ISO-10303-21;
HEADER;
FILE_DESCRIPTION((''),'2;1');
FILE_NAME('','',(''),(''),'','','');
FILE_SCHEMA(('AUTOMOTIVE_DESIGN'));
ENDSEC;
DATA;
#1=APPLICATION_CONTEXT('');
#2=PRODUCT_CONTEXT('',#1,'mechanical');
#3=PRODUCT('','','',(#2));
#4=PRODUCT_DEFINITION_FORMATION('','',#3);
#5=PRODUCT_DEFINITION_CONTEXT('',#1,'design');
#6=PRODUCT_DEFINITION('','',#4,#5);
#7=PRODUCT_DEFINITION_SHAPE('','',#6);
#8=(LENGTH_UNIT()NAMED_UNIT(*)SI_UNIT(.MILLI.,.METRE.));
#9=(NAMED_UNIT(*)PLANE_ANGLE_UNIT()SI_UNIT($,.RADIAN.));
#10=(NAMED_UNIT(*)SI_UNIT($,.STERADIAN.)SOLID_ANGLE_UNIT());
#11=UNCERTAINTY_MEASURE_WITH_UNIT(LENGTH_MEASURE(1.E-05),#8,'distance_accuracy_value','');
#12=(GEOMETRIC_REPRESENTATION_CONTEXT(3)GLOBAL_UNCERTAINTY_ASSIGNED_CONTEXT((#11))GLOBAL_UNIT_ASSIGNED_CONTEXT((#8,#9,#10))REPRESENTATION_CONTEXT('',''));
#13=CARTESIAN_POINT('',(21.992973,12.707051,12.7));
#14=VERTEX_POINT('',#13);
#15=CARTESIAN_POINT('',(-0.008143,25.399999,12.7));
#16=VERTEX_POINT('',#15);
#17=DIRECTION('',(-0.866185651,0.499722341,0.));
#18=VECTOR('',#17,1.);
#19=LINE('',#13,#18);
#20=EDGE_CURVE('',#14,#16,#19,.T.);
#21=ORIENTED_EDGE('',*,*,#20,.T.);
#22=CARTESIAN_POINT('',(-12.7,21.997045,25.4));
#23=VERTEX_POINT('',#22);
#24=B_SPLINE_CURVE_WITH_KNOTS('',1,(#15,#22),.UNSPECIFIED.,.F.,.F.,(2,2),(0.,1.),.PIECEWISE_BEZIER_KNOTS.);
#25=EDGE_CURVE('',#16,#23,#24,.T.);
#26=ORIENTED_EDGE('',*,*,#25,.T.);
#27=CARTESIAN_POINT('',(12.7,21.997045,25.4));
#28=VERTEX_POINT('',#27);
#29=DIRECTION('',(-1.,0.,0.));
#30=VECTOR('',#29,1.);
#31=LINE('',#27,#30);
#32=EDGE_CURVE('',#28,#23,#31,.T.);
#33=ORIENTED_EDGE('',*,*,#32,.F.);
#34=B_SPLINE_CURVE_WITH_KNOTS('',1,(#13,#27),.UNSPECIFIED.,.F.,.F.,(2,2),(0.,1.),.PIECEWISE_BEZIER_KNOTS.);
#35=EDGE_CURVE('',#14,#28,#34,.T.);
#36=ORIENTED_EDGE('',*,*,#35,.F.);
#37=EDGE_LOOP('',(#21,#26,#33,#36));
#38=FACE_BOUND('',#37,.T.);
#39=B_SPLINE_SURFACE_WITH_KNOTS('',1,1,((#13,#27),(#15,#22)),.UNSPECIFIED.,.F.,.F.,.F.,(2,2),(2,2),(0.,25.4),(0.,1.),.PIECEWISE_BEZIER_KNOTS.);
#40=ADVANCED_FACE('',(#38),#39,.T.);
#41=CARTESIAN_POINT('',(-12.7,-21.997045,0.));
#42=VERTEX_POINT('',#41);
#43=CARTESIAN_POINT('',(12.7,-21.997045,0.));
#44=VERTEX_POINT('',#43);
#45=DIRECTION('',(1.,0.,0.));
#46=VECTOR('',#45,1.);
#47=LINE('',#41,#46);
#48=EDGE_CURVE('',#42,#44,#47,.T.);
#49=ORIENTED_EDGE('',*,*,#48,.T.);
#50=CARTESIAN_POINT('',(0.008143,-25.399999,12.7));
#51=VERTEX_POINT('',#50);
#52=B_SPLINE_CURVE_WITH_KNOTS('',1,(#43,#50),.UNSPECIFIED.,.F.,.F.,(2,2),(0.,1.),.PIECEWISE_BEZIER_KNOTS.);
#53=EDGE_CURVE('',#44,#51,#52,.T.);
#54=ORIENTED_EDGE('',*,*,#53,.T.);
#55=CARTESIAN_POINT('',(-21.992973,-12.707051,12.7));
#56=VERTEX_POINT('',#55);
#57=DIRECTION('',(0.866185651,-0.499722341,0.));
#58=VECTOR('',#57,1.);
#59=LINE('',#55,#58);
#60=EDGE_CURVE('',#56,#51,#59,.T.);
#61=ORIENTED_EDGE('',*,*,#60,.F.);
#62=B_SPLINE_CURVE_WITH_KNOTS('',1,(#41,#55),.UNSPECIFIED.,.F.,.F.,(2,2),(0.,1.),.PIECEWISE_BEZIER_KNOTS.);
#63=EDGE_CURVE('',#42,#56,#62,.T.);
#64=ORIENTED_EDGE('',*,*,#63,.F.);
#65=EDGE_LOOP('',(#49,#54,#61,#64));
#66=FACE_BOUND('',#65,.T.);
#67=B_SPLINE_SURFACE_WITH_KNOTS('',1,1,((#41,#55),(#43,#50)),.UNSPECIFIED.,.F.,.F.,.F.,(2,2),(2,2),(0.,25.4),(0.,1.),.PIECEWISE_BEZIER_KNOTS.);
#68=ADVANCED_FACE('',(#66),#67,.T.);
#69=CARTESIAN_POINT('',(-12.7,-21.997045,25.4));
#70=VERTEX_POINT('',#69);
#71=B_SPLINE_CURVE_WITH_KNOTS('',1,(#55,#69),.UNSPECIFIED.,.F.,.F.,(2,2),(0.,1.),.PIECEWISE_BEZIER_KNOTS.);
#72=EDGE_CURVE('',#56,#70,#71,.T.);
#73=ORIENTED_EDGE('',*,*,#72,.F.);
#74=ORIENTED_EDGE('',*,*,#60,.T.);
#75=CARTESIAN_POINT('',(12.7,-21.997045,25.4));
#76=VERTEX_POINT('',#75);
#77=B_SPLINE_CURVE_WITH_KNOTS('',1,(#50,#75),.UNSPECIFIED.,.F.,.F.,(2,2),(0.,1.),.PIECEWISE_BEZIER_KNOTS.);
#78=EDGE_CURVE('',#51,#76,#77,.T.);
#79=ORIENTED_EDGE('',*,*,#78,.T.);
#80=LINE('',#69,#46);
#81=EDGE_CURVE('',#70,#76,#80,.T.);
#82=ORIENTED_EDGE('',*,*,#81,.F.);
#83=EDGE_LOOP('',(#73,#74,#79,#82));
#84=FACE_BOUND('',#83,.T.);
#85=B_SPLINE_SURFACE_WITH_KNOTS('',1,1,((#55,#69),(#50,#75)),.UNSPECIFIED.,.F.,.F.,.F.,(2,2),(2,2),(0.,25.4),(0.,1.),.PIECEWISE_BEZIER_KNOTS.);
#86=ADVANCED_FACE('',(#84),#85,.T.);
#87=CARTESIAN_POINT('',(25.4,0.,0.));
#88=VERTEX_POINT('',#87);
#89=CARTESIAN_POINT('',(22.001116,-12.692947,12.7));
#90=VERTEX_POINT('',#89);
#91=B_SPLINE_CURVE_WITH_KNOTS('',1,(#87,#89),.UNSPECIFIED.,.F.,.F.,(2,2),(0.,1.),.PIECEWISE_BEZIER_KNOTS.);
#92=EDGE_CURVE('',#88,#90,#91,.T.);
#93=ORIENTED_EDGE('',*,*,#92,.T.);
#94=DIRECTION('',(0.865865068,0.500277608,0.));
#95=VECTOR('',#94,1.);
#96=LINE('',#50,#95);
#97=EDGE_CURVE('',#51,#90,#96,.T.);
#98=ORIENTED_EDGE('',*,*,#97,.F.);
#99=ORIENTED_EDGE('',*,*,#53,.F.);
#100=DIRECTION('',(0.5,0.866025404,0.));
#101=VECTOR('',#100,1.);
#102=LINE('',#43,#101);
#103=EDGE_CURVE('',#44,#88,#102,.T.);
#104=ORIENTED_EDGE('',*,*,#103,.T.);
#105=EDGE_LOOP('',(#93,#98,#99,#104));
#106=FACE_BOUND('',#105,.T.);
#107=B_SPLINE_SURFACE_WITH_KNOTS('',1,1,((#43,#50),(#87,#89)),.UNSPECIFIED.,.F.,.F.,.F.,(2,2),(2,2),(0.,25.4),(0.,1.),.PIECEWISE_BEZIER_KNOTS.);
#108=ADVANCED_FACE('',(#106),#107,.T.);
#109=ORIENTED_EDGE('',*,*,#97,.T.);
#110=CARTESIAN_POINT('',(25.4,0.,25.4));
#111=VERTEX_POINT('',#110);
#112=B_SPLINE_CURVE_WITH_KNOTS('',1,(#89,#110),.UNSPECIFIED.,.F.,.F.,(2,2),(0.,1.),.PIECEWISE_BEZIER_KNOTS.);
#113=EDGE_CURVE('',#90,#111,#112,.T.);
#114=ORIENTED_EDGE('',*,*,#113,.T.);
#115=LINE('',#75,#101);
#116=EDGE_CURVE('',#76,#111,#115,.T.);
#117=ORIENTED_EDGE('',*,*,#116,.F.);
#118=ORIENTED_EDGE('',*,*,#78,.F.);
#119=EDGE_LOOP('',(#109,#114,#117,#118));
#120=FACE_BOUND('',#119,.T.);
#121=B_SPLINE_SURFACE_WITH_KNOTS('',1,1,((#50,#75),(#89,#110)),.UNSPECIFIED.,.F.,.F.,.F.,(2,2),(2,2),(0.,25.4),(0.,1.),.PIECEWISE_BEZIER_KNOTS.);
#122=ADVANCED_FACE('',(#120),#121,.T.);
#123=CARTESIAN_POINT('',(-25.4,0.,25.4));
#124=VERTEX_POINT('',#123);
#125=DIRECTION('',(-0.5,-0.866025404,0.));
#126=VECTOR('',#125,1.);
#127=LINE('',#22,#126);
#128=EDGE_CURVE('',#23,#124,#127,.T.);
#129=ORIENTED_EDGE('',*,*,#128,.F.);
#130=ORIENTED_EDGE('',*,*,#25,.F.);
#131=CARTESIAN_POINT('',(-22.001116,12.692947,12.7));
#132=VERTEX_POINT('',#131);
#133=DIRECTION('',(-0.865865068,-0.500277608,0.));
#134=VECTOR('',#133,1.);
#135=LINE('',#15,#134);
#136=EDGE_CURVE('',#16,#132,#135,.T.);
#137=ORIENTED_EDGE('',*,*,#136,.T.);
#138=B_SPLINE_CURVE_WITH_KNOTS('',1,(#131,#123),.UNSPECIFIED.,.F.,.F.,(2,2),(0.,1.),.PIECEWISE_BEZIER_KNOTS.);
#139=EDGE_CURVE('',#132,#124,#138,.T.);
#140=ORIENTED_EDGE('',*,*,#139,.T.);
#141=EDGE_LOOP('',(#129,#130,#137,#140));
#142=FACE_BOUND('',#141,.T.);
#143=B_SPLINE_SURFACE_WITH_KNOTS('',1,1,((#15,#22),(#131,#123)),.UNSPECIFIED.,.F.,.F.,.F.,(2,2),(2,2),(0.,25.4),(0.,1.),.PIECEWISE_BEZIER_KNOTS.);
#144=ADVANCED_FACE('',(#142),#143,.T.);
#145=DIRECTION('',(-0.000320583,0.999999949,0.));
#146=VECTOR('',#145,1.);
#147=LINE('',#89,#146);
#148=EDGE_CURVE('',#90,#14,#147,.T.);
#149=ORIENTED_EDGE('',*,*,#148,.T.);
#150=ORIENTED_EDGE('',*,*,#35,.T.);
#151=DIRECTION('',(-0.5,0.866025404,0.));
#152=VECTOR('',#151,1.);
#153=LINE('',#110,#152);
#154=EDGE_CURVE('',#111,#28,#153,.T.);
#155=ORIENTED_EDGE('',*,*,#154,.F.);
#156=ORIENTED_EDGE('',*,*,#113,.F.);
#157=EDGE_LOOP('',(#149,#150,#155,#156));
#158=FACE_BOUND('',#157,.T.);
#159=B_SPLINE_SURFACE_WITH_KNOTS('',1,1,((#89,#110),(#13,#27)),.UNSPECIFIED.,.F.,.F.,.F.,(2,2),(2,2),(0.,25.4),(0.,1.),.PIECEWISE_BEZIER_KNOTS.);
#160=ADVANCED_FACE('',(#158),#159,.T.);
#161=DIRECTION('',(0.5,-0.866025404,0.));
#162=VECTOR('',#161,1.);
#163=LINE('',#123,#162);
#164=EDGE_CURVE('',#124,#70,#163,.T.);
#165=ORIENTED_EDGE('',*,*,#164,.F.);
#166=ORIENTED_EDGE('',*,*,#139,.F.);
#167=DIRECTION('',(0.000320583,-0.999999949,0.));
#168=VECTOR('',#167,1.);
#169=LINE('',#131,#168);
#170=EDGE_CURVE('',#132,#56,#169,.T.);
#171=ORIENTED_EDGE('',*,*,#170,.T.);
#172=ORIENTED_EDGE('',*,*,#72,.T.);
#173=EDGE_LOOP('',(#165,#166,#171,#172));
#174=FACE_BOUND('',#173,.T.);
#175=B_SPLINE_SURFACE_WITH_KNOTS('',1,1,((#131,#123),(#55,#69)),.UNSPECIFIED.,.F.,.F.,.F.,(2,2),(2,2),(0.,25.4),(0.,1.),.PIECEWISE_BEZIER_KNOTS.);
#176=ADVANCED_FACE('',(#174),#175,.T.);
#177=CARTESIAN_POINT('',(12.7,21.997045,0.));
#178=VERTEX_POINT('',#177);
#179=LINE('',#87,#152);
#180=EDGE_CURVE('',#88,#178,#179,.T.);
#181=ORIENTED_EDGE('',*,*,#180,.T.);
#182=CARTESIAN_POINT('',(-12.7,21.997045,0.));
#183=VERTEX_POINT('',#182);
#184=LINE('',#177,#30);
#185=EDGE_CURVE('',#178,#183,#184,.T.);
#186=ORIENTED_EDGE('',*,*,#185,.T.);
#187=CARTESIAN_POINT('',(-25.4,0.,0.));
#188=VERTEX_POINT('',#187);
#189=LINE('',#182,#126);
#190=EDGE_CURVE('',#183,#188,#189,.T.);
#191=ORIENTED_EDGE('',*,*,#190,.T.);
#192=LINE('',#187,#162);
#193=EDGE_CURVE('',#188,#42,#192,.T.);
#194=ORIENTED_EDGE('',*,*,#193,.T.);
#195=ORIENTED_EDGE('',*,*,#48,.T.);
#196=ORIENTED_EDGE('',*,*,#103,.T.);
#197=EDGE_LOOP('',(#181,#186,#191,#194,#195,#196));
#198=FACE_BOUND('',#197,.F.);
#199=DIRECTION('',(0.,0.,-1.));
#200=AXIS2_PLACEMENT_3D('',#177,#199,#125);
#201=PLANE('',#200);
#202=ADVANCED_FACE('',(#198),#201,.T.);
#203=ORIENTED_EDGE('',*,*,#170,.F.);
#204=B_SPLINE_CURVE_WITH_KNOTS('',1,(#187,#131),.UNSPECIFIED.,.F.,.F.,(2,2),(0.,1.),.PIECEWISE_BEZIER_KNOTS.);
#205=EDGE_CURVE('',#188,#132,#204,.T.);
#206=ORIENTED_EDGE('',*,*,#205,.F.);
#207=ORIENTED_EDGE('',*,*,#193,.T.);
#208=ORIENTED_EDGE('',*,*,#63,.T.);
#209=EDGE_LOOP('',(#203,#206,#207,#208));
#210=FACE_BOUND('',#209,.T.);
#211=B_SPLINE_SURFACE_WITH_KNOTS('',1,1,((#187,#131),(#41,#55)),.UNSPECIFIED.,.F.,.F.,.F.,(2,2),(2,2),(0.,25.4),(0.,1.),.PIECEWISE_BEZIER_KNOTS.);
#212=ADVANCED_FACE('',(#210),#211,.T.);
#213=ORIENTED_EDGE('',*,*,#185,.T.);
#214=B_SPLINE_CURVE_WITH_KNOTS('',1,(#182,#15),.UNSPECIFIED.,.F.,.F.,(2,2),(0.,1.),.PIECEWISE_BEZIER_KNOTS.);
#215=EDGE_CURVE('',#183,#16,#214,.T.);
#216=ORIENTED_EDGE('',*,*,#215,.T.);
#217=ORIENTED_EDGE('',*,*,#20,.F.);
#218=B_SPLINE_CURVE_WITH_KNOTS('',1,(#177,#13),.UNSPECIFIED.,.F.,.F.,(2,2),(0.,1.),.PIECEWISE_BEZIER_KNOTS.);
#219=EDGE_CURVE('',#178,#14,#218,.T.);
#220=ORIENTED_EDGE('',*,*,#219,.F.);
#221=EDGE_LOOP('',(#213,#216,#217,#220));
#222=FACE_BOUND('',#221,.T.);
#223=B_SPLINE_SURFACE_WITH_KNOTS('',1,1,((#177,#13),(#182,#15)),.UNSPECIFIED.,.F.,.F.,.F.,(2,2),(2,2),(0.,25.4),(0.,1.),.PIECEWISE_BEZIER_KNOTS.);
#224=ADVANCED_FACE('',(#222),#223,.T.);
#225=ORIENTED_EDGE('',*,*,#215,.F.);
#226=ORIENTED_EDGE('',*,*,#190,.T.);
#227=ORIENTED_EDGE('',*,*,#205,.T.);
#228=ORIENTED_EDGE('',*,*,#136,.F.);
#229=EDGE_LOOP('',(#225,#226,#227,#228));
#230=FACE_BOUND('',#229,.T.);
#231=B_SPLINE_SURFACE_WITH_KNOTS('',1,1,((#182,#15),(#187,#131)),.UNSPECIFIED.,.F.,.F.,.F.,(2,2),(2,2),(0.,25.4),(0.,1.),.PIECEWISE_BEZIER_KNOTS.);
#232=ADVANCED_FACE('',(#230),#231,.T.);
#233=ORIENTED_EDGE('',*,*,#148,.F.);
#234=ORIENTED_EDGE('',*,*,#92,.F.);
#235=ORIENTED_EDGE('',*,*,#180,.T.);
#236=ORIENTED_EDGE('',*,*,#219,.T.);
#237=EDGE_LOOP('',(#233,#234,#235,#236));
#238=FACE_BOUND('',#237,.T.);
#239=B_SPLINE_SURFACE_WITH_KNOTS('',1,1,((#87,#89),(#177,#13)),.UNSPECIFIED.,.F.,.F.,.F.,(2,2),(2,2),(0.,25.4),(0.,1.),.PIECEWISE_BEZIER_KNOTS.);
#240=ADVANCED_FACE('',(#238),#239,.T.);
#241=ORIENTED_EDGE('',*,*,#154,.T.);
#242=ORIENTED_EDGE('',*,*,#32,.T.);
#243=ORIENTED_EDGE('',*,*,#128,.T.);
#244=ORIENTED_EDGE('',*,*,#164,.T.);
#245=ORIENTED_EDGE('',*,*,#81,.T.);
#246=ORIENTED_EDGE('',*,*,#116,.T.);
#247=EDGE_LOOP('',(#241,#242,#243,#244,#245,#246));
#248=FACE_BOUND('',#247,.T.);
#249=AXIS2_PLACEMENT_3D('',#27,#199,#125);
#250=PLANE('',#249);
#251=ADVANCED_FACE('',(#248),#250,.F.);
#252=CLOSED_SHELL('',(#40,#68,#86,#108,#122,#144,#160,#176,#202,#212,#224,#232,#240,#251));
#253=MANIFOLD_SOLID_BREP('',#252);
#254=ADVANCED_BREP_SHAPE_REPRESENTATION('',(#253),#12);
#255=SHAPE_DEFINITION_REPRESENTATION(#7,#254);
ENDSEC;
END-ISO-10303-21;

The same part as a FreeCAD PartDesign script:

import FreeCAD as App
import Part
import Sketcher
Q = App.Units.Quantity

doc = App.newDocument("Part")
body = doc.addObject("PartDesign::Body", "Body")

# Sketch on XY plane
sketch1 = doc.addObject("Sketcher::SketchObject", "Sketch")
body.addObject(sketch1)
sketch1.AttachmentSupport = (doc.XY_Plane, [""])
sketch1.MapMode = "FlatFace"
sketch1.addGeometry([
    Part.LineSegment(App.Vector(13, 22, 0), App.Vector(-13, 22, 0)),  # 0
    Part.LineSegment(App.Vector(-13, 22, 0), App.Vector(-25, 0, 0)),  # 1
    Part.LineSegment(App.Vector(-25, 0, 0), App.Vector(-13, -22, 0)),  # 2
    Part.LineSegment(App.Vector(-13, -22, 0), App.Vector(13, -22, 0)),  # 3
    Part.LineSegment(App.Vector(13, -22, 0), App.Vector(25, 0, 0)),  # 4
    Part.LineSegment(App.Vector(25, 0, 0), App.Vector(13, 22, 0)),  # 5
], False)
sketch1.addConstraint([
    Sketcher.Constraint("Coincident", 0, 2, 1, 1),
    Sketcher.Constraint("Coincident", 1, 2, 2, 1),
    Sketcher.Constraint("Coincident", 2, 2, 3, 1),
    Sketcher.Constraint("Coincident", 3, 2, 4, 1),
    Sketcher.Constraint("Coincident", 4, 2, 5, 1),
    Sketcher.Constraint("Coincident", 5, 2, 0, 1),
    Sketcher.Constraint("Horizontal", 0),
    Sketcher.Constraint("Horizontal", 3),
    Sketcher.Constraint("Symmetric", 0, 2, 3, 2, -1, 1),
    Sketcher.Constraint("Symmetric", 1, 2, 4, 2, -1, 1),
    Sketcher.Constraint("PointOnObject", 1, 2, -1),
    Sketcher.Constraint("Parallel", 2, 5),
    Sketcher.Constraint("Vertical", 0, 2, 2, 2),
    Sketcher.Constraint("DistanceX", 0, 2, 0, 1, Q("1 in")),
    Sketcher.Constraint("Distance", 1, Q("1 in")),
    Sketcher.Constraint("DistanceX", 1, 2, -1, 1, Q("1 in")),
])

# Sketch on XY plane
sketch2 = doc.addObject("Sketcher::SketchObject", "Sketch001")
body.addObject(sketch2)
sketch2.AttachmentSupport = (doc.XY_Plane, [""])
sketch2.MapMode = "FlatFace"
sketch2.AttachmentOffset = App.Placement(App.Vector(0, 0, 0.5 * 25.4), App.Rotation())
sketch2.addGeometry([
    Part.LineSegment(App.Vector(0, 25, 0), App.Vector(-22, 13, 0)),  # 0
    Part.LineSegment(App.Vector(-22, 13, 0), App.Vector(-22, -13, 0)),  # 1
    Part.LineSegment(App.Vector(-22, -13, 0), App.Vector(0, -25, 0)),  # 2
    Part.LineSegment(App.Vector(0, -25, 0), App.Vector(22, -13, 0)),  # 3
    Part.LineSegment(App.Vector(22, -13, 0), App.Vector(22, 13, 0)),  # 4
    Part.LineSegment(App.Vector(22, 13, 0), App.Vector(0, 25, 0)),  # 5
], False)
sketch2.addConstraint([
    Sketcher.Constraint("Coincident", 0, 2, 1, 1),
    Sketcher.Constraint("Coincident", 1, 2, 2, 1),
    Sketcher.Constraint("Coincident", 2, 2, 3, 1),
    Sketcher.Constraint("Coincident", 3, 2, 4, 1),
    Sketcher.Constraint("Coincident", 4, 2, 5, 1),
    Sketcher.Constraint("Coincident", 5, 2, 0, 1),
    Sketcher.Constraint("Symmetric", 0, 2, 3, 2, -1, 1),
    Sketcher.Constraint("Symmetric", 1, 2, 4, 2, -1, 1),
    Sketcher.Constraint("Symmetric", 2, 2, 5, 2, -1, 1),
    Sketcher.Constraint("Equal", 0, 1),
    Sketcher.Constraint("Equal", 1, 2),
    Sketcher.Constraint("Distance", 0, Q("1 in")),
    Sketcher.Constraint("DistanceY", 2, 2, -1, 1, Q("0.9999999 in")),
    Sketcher.Constraint("DistanceY", 1, 2, -1, 1, 12.707051),
    Sketcher.Constraint("DistanceX", 0, 2, 2, 2, 22.009258),
])

additiveloft = doc.addObject("PartDesign::AdditiveLoft", "AdditiveLoft")
body.addObject(additiveloft)
additiveloft.Profile = sketch1
additiveloft.Sections = [sketch2]

# Sketch on XY plane
sketch3 = doc.addObject("Sketcher::SketchObject", "Sketch002")
body.addObject(sketch3)
sketch3.AttachmentSupport = (doc.XY_Plane, [""])
sketch3.MapMode = "FlatFace"
sketch3.AttachmentOffset = App.Placement(App.Vector(0, 0, 0.5 * 25.4), App.Rotation())
sketch3.addGeometry([
    Part.LineSegment(App.Vector(22, 13, 0), App.Vector(0, 25, 0)),  # 0
    Part.LineSegment(App.Vector(0, 25, 0), App.Vector(-22, 13, 0)),  # 1
    Part.LineSegment(App.Vector(-22, 13, 0), App.Vector(-22, -13, 0)),  # 2
    Part.LineSegment(App.Vector(-22, -13, 0), App.Vector(0, -25, 0)),  # 3
    Part.LineSegment(App.Vector(0, -25, 0), App.Vector(22, -13, 0)),  # 4
    Part.LineSegment(App.Vector(22, -13, 0), App.Vector(22, 13, 0)),  # 5
], False)
sketch3.addConstraint([
    Sketcher.Constraint("Coincident", 0, 2, 1, 1),
    Sketcher.Constraint("Coincident", 1, 2, 2, 1),
    Sketcher.Constraint("Coincident", 2, 2, 3, 1),
    Sketcher.Constraint("Coincident", 3, 2, 4, 1),
    Sketcher.Constraint("Coincident", 4, 2, 5, 1),
    Sketcher.Constraint("Coincident", 5, 2, 0, 1),
    Sketcher.Constraint("Symmetric", 0, 2, 3, 2, -1, 1),
    Sketcher.Constraint("Symmetric", 1, 2, 4, 2, -1, 1),
    Sketcher.Constraint("Symmetric", 2, 2, 5, 2, -1, 1),
    Sketcher.Constraint("Equal", 0, 1),
    Sketcher.Constraint("Equal", 1, 2),
    Sketcher.Constraint("Distance", 0, Q("1 in")),
    Sketcher.Constraint("DistanceY", -1, 1, 0, 2, Q("0.9999999 in")),
    Sketcher.Constraint("DistanceY", 2, 2, -1, 1, 12.707051),
    Sketcher.Constraint("DistanceX", 2, 2, 0, 2, 21.98483),
])

# Sketch on XY plane
sketch4 = doc.addObject("Sketcher::SketchObject", "Sketch003")
body.addObject(sketch4)
sketch4.AttachmentSupport = (doc.XY_Plane, [""])
sketch4.MapMode = "FlatFace"
sketch4.AttachmentOffset = App.Placement(App.Vector(0, 0, 1 * 25.4), App.Rotation())
sketch4.addGeometry([
    Part.LineSegment(App.Vector(13, 22, 0), App.Vector(-13, 22, 0)),  # 0
    Part.LineSegment(App.Vector(-13, 22, 0), App.Vector(-25, 0, 0)),  # 1
    Part.LineSegment(App.Vector(-25, 0, 0), App.Vector(-13, -22, 0)),  # 2
    Part.LineSegment(App.Vector(-13, -22, 0), App.Vector(13, -22, 0)),  # 3
    Part.LineSegment(App.Vector(13, -22, 0), App.Vector(25, 0, 0)),  # 4
    Part.LineSegment(App.Vector(25, 0, 0), App.Vector(13, 22, 0)),  # 5
], False)
sketch4.addConstraint([
    Sketcher.Constraint("Coincident", 0, 2, 1, 1),
    Sketcher.Constraint("Coincident", 1, 2, 2, 1),
    Sketcher.Constraint("Coincident", 2, 2, 3, 1),
    Sketcher.Constraint("Coincident", 3, 2, 4, 1),
    Sketcher.Constraint("Coincident", 4, 2, 5, 1),
    Sketcher.Constraint("Coincident", 5, 2, 0, 1),
    Sketcher.Constraint("Horizontal", 0),
    Sketcher.Constraint("Horizontal", 3),
    Sketcher.Constraint("Symmetric", 0, 2, 3, 2, -1, 1),
    Sketcher.Constraint("Symmetric", 1, 2, 4, 2, -1, 1),
    Sketcher.Constraint("PointOnObject", 1, 2, -1),
    Sketcher.Constraint("Parallel", 2, 5),
    Sketcher.Constraint("Vertical", 0, 2, 2, 2),
    Sketcher.Constraint("DistanceX", 0, 2, 0, 1, Q("1 in")),
    Sketcher.Constraint("Distance", 1, Q("1 in")),
    Sketcher.Constraint("DistanceX", 1, 2, -1, 1, Q("1 in")),
])

additiveloft2 = doc.addObject("PartDesign::AdditiveLoft", "AdditiveLoft001")
body.addObject(additiveloft2)
additiveloft2.Profile = sketch3
additiveloft2.Sections = [sketch4]

doc.recompute()
